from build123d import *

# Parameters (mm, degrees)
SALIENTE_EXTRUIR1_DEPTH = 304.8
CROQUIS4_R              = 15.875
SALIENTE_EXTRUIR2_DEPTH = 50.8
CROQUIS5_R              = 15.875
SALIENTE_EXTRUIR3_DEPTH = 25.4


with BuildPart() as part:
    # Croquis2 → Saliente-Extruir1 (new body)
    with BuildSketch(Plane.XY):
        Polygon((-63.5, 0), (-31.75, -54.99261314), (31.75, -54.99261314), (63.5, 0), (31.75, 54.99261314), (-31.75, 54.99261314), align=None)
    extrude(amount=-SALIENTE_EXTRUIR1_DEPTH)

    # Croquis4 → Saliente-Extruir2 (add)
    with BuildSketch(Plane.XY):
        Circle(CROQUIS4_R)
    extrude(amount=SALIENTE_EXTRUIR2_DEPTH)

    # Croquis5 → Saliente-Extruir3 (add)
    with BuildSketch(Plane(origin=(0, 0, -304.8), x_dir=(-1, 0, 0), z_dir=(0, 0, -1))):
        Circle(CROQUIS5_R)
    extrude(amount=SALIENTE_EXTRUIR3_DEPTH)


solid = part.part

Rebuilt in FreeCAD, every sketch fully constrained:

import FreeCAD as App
import Part
import Sketcher
Q = App.Units.Quantity

doc = App.newDocument("Part")
body = doc.addObject("PartDesign::Body", "Body")

# Sketch on XY plane
sketch1 = body.newObject("Sketcher::SketchObject", "Sketch")
sketch1.AttachmentSupport = (doc.getObject("XY_Plane"), [""])
sketch1.MapMode = "FlatFace"
sketch1.addGeometry(Part.LineSegment(App.Vector(-63.5, 0, 0), App.Vector(-31.75, -54.992613, 0)), False)
sketch1.addGeometry(Part.LineSegment(App.Vector(-31.75, -54.992613, 0), App.Vector(31.75, -54.992613, 0)), False)
sketch1.addGeometry(Part.LineSegment(App.Vector(31.75, -54.992613, 0), App.Vector(63.5, 0, 0)), False)
sketch1.addGeometry(Part.LineSegment(App.Vector(63.5, 0, 0), App.Vector(31.75, 54.992613, 0)), False)
sketch1.addGeometry(Part.LineSegment(App.Vector(31.75, 54.992613, 0), App.Vector(-31.75, 54.992613, 0)), False)
sketch1.addGeometry(Part.LineSegment(App.Vector(-31.75, 54.992613, 0), App.Vector(-63.5, 0, 0)), False)
sketch1.addConstraint(Sketcher.Constraint("Coincident", 0, 2, 1, 1))
sketch1.addConstraint(Sketcher.Constraint("Coincident", 1, 2, 2, 1))
sketch1.addConstraint(Sketcher.Constraint("Coincident", 2, 2, 3, 1))
sketch1.addConstraint(Sketcher.Constraint("Coincident", 3, 2, 4, 1))
sketch1.addConstraint(Sketcher.Constraint("Coincident", 4, 2, 5, 1))
sketch1.addConstraint(Sketcher.Constraint("Coincident", 5, 2, 0, 1))
sketch1.addConstraint(Sketcher.Constraint("Horizontal", 1))
sketch1.addConstraint(Sketcher.Constraint("Horizontal", 4))
sketch1.addConstraint(Sketcher.Constraint("Symmetric", 0, 2, 3, 2, -1, 1))
sketch1.addConstraint(Sketcher.Constraint("Symmetric", 2, 2, 5, 2, -1, 1))
sketch1.addConstraint(Sketcher.Constraint("PointOnObject", 2, 2, -1))
sketch1.addConstraint(Sketcher.Constraint("Parallel", 2, 5))
sketch1.addConstraint(Sketcher.Constraint("Vertical", 1, 2, 3, 2))
sketch1.addConstraint(Sketcher.Constraint("DistanceX", 1, 1, 1, 2, Q("2.5 in")))
sketch1.addConstraint(Sketcher.Constraint("Angle", 0, Q("-60 deg")))
sketch1.addConstraint(Sketcher.Constraint("DistanceX", 5, 2, 2, 2, Q("5 in")))
pad1 = body.newObject("PartDesign::Pad", "Pad")
pad1.Profile = sketch1
pad1.Length = Q("12 in")
pad1.Reversed = True

# Sketch on XY plane
sketch2 = body.newObject("Sketcher::SketchObject", "Sketch001")
sketch2.AttachmentSupport = (doc.getObject("XY_Plane"), [""])
sketch2.MapMode = "FlatFace"
sketch2.addGeometry(Part.Circle(App.Vector(0, 0, 0), App.Vector(0, 0, 1), 15.875), False)
sketch2.addConstraint(Sketcher.Constraint("Coincident", 0, 3, -1, 1))
sketch2.addConstraint(Sketcher.Constraint("Diameter", 0, Q("1.25 in")))
pad2 = body.newObject("PartDesign::Pad", "Pad001")
pad2.Profile = sketch2
pad2.Length = Q("2 in")

# Sketch on XY plane
sketch3 = body.newObject("Sketcher::SketchObject", "Sketch002")
sketch3.AttachmentSupport = (doc.getObject("XY_Plane"), [""])
sketch3.MapMode = "FlatFace"
sketch3.AttachmentOffset = App.Placement(App.Vector(0, 0, -12 * 25.4), App.Rotation())
sketch3.addGeometry(Part.Circle(App.Vector(0, 0, 0), App.Vector(0, 0, 1), 15.875), False)
sketch3.addConstraint(Sketcher.Constraint("Coincident", 0, 3, -1, 1))
sketch3.addConstraint(Sketcher.Constraint("Diameter", 0, Q("1.25 in")))
pad3 = body.newObject("PartDesign::Pad", "Pad002")
pad3.Profile = sketch3
pad3.Length = Q("1 in")
pad3.Reversed = True

doc.recompute()
